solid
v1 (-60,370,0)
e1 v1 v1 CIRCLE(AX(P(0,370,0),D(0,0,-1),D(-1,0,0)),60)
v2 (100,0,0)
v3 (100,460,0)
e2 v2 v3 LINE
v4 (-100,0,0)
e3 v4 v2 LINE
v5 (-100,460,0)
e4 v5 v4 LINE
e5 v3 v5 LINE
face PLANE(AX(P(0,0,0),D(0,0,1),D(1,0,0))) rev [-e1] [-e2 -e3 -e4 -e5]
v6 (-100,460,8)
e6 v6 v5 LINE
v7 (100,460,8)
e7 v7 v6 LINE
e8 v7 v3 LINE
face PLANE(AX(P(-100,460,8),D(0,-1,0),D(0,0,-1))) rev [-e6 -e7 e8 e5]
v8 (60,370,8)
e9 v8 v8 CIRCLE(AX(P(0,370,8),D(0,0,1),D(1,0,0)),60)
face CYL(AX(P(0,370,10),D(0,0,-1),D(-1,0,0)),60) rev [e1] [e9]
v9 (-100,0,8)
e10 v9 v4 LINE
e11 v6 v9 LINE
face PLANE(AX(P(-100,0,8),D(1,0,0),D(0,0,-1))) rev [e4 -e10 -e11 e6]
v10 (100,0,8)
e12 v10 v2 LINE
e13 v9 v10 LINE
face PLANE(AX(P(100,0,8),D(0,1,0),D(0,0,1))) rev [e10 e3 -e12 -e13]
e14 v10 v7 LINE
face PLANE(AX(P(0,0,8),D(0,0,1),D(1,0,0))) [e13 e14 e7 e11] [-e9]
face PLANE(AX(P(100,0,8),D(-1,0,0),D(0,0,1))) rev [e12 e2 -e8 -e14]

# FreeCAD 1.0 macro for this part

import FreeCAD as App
import Part
import Sketcher
from FreeCAD import Vector

doc = App.newDocument("Part")
body = doc.addObject("PartDesign::Body", "Body")

# Sketch on XY plane
sketch1 = doc.addObject("Sketcher::SketchObject", "Sketch")
body.addObject(sketch1)
sketch1.AttachmentSupport = (doc.XY_Plane, [""])
sketch1.MapMode = "FlatFace"
sketch1.addGeometry(Part.LineSegment(Vector(-100, 460, 0), Vector(-100, 0, 0)), False)
sketch1.addGeometry(Part.LineSegment(Vector(-100, 0, 0), Vector(100, 0, 0)), False)
sketch1.addGeometry(Part.LineSegment(Vector(100, 0, 0), Vector(100, 460, 0)), False)
sketch1.addGeometry(Part.LineSegment(Vector(100, 460, 0), Vector(-100, 460, 0)), False)
sketch1.addConstraint(Sketcher.Constraint("Coincident", 0, 2, 1, 1))
sketch1.addConstraint(Sketcher.Constraint("Coincident", 1, 2, 2, 1))
sketch1.addConstraint(Sketcher.Constraint("Coincident", 2, 2, 3, 1))
sketch1.addConstraint(Sketcher.Constraint("Coincident", 3, 2, 0, 1))
sketch1.addConstraint(Sketcher.Constraint("Vertical", 0))
sketch1.addConstraint(Sketcher.Constraint("Horizontal", 1))
sketch1.addConstraint(Sketcher.Constraint("Vertical", 2))
sketch1.addConstraint(Sketcher.Constraint("Horizontal", 3))
sketch1.addConstraint(Sketcher.Constraint("Symmetric", 0, 2, 1, 2, -1, 1))
sketch1.addConstraint(Sketcher.Constraint("DistanceX", 1, 1, 1, 2, 200.0))
sketch1.addConstraint(Sketcher.Constraint("DistanceY", 0, 2, 0, 1, 460.0))
pad1 = doc.addObject("PartDesign::Pad", "Pad")
body.addObject(pad1)
pad1.Profile = sketch1
pad1.Length = 8

# Sketch on XY plane
sketch2 = doc.addObject("Sketcher::SketchObject", "Sketch001")
body.addObject(sketch2)
sketch2.AttachmentSupport = (doc.XY_Plane, [""])
sketch2.MapMode = "FlatFace"
sketch2.addGeometry(Part.Circle(Vector(0, 370, 0), Vector(0, 0, 1), 60), False)
sketch2.addConstraint(Sketcher.Constraint("PointOnObject", 0, 3, -2))
sketch2.addConstraint(Sketcher.Constraint("Diameter", 0, 120.0))
sketch2.addConstraint(Sketcher.Constraint("DistanceY", -1, 1, 0, 3, 370.0))
pocket1 = doc.addObject("PartDesign::Pocket", "Pocket")
body.addObject(pocket1)
pocket1.Profile = sketch2
pocket1.Length = 10
pocket1.Reversed = True

doc.recompute()
